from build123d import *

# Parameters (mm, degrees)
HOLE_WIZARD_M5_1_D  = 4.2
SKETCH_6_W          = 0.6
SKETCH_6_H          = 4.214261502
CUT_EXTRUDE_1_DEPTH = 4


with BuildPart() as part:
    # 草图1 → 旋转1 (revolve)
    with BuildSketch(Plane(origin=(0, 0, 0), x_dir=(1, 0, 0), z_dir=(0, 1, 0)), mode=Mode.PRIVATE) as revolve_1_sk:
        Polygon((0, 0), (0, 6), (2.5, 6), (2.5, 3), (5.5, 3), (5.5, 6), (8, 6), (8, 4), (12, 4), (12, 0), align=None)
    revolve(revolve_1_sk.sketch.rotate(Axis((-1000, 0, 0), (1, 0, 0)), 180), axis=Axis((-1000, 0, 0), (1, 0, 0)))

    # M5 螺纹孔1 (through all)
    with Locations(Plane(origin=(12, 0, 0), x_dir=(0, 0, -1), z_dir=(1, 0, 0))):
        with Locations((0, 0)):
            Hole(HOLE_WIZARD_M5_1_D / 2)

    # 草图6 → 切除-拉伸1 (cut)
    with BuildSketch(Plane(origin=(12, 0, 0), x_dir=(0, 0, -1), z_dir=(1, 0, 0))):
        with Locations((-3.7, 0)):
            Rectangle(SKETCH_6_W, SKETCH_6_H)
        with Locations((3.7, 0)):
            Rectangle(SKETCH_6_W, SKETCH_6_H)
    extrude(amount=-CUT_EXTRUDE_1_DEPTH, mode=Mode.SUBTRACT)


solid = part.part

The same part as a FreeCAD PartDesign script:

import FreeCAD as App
import Part
import Sketcher

doc = App.newDocument("Part")
body = doc.addObject("PartDesign::Body", "Body")

# Sketch on XZ plane
sketch1 = body.newObject("Sketcher::SketchObject", "Sketch")
sketch1.AttachmentSupport = (doc.getObject("XZ_Plane"), [""])
sketch1.MapMode = "FlatFace"
sketch1.addGeometry(Part.LineSegment(App.Vector(0, -6, 0), App.Vector(0, 0, 0)), False)
sketch1.addGeometry(Part.LineSegment(App.Vector(0, 0, 0), App.Vector(12, 0, 0)), False)
sketch1.addGeometry(Part.LineSegment(App.Vector(12, 0, 0), App.Vector(12, -4, 0)), False)
sketch1.addGeometry(Part.LineSegment(App.Vector(12, -4, 0), App.Vector(8, -4, 0)), False)
sketch1.addGeometry(Part.LineSegment(App.Vector(8, -4, 0), App.Vector(8, -6, 0)), False)
sketch1.addGeometry(Part.LineSegment(App.Vector(8, -6, 0), App.Vector(5.5, -6, 0)), False)
sketch1.addGeometry(Part.LineSegment(App.Vector(5.5, -6, 0), App.Vector(5.5, -3, 0)), False)
sketch1.addGeometry(Part.LineSegment(App.Vector(5.5, -3, 0), App.Vector(2.5, -3, 0)), False)
sketch1.addGeometry(Part.LineSegment(App.Vector(2.5, -3, 0), App.Vector(2.5, -6, 0)), False)
sketch1.addGeometry(Part.LineSegment(App.Vector(2.5, -6, 0), App.Vector(0, -6, 0)), False)
sketch1.addConstraint(Sketcher.Constraint("Coincident", 0, 2, 1, 1))
sketch1.addConstraint(Sketcher.Constraint("Coincident", 1, 2, 2, 1))
sketch1.addConstraint(Sketcher.Constraint("Coincident", 2, 2, 3, 1))
sketch1.addConstraint(Sketcher.Constraint("Coincident", 3, 2, 4, 1))
sketch1.addConstraint(Sketcher.Constraint("Coincident", 4, 2, 5, 1))
sketch1.addConstraint(Sketcher.Constraint("Coincident", 5, 2, 6, 1))
sketch1.addConstraint(Sketcher.Constraint("Coincident", 6, 2, 7, 1))
sketch1.addConstraint(Sketcher.Constraint("Coincident", 7, 2, 8, 1))
sketch1.addConstraint(Sketcher.Constraint("Coincident", 8, 2, 9, 1))
sketch1.addConstraint(Sketcher.Constraint("Coincident", 9, 2, 0, 1))
sketch1.addConstraint(Sketcher.Constraint("Vertical", 0))
sketch1.addConstraint(Sketcher.Constraint("Horizontal", 1))
sketch1.addConstraint(Sketcher.Constraint("Vertical", 2))
sketch1.addConstraint(Sketcher.Constraint("Horizontal", 3))
sketch1.addConstraint(Sketcher.Constraint("Vertical", 4))
sketch1.addConstraint(Sketcher.Constraint("Horizontal", 5))
sketch1.addConstraint(Sketcher.Constraint("Vertical", 6))
sketch1.addConstraint(Sketcher.Constraint("Horizontal", 7))
sketch1.addConstraint(Sketcher.Constraint("Vertical", 8))
sketch1.addConstraint(Sketcher.Constraint("Horizontal", 9))
sketch1.addConstraint(Sketcher.Constraint("Coincident", 0, 2, -1, 1))
sketch1.addConstraint(Sketcher.Constraint("Horizontal", 5, 2, 8, 2))
sketch1.addConstraint(Sketcher.Constraint("Equal", 5, 9))
sketch1.addConstraint(Sketcher.Constraint("Equal", 3, 2))
sketch1.addConstraint(Sketcher.Constraint("Equal", 7, 6))
sketch1.addConstraint(Sketcher.Constraint("DistanceX", 1, 1, 1, 2, 12.0))
sketch1.addConstraint(Sketcher.Constraint("DistanceX", 3, 2, 3, 1, 4.0))
sketch1.addConstraint(Sketcher.Constraint("DistanceX", 7, 2, 7, 1, 3.0))
sketch1.addConstraint(Sketcher.Constraint("DistanceY", 0, 1, 0, 2, 6.0))
revolution = body.newObject("PartDesign::Revolution", "Revolution")
revolution.Profile = sketch1
revolution.ReferenceAxis = (sketch1, ["H_Axis"])
revolution.Angle = 360

# Sketch on YZ plane
sketch2 = body.newObject("Sketcher::SketchObject", "Sketch001")
sketch2.AttachmentSupport = (doc.getObject("YZ_Plane"), [""])
sketch2.MapMode = "FlatFace"
sketch2.AttachmentOffset = App.Placement(App.Vector(0, 0, 12), App.Rotation())
sketch2.addGeometry(Part.Circle(App.Vector(0, 0, 0), App.Vector(0, 0, 1), 2.1), False)
sketch2.addConstraint(Sketcher.Constraint("Coincident", 0, 3, -1, 1))
sketch2.addConstraint(Sketcher.Constraint("Diameter", 0, 4.2))
doc.recompute()
hole = body.newObject("PartDesign::Hole", "Hole")
hole.Profile = sketch2
hole.ThreadType = "None"
hole.Diameter = 4.2
hole.DepthType = "ThroughAll"

# Sketch on YZ plane
sketch3 = body.newObject("Sketcher::SketchObject", "Sketch002")
sketch3.AttachmentSupport = (doc.getObject("YZ_Plane"), [""])
sketch3.MapMode = "FlatFace"
sketch3.AttachmentOffset = App.Placement(App.Vector(0, 0, 12), App.Rotation())
sketch3.addGeometry(Part.LineSegment(App.Vector(2.1, 4, 0), App.Vector(-2.1, 4, 0)), False)
sketch3.addGeometry(Part.LineSegment(App.Vector(-2.1, 4, 0), App.Vector(-2.1, 3.4, 0)), False)
sketch3.addGeometry(Part.LineSegment(App.Vector(-2.1, 3.4, 0), App.Vector(2.1, 3.4, 0)), False)
sketch3.addGeometry(Part.LineSegment(App.Vector(2.1, 3.4, 0), App.Vector(2.1, 4, 0)), False)
sketch3.addGeometry(Part.LineSegment(App.Vector(2.1, -3.4, 0), App.Vector(-2.1, -3.4, 0)), False)
sketch3.addGeometry(Part.LineSegment(App.Vector(-2.1, -3.4, 0), App.Vector(-2.1, -4, 0)), False)
sketch3.addGeometry(Part.LineSegment(App.Vector(-2.1, -4, 0), App.Vector(2.1, -4, 0)), False)
sketch3.addGeometry(Part.LineSegment(App.Vector(2.1, -4, 0), App.Vector(2.1, -3.4, 0)), False)
sketch3.addConstraint(Sketcher.Constraint("Coincident", 0, 2, 1, 1))
sketch3.addConstraint(Sketcher.Constraint("Coincident", 1, 2, 2, 1))
sketch3.addConstraint(Sketcher.Constraint("Coincident", 2, 2, 3, 1))
sketch3.addConstraint(Sketcher.Constraint("Coincident", 3, 2, 0, 1))
sketch3.addConstraint(Sketcher.Constraint("Coincident", 4, 2, 5, 1))
sketch3.addConstraint(Sketcher.Constraint("Coincident", 5, 2, 6, 1))
sketch3.addConstraint(Sketcher.Constraint("Coincident", 6, 2, 7, 1))
sketch3.addConstraint(Sketcher.Constraint("Coincident", 7, 2, 4, 1))
sketch3.addConstraint(Sketcher.Constraint("Horizontal", 0))
sketch3.addConstraint(Sketcher.Constraint("Vertical", 1))
sketch3.addConstraint(Sketcher.Constraint("Horizontal", 2))
sketch3.addConstraint(Sketcher.Constraint("Vertical", 3))
sketch3.addConstraint(Sketcher.Constraint("Horizontal", 4))
sketch3.addConstraint(Sketcher.Constraint("Vertical", 5))
sketch3.addConstraint(Sketcher.Constraint("Horizontal", 6))
sketch3.addConstraint(Sketcher.Constraint("Vertical", 7))
sketch3.addConstraint(Sketcher.Constraint("Symmetric", 2, 2, 4, 2, -1, 1))
sketch3.addConstraint(Sketcher.Constraint("Symmetric", 0, 2, 6, 2, -1, 1))
sketch3.addConstraint(Sketcher.Constraint("Vertical", 1, 2, 4, 2))
sketch3.addConstraint(Sketcher.Constraint("DistanceY", 1, 2, 1, 1, 0.6))
sketch3.addConstraint(Sketcher.Constraint("DistanceY", -1, 1, 0, 2, 4.0))
sketch3.addConstraint(Sketcher.Constraint("DistanceX", 0, 2, 0, 1, 4.214262))
pocket1 = body.newObject("PartDesign::Pocket", "Pocket")
pocket1.Profile = sketch3
pocket1.Length = 4

doc.recompute()
